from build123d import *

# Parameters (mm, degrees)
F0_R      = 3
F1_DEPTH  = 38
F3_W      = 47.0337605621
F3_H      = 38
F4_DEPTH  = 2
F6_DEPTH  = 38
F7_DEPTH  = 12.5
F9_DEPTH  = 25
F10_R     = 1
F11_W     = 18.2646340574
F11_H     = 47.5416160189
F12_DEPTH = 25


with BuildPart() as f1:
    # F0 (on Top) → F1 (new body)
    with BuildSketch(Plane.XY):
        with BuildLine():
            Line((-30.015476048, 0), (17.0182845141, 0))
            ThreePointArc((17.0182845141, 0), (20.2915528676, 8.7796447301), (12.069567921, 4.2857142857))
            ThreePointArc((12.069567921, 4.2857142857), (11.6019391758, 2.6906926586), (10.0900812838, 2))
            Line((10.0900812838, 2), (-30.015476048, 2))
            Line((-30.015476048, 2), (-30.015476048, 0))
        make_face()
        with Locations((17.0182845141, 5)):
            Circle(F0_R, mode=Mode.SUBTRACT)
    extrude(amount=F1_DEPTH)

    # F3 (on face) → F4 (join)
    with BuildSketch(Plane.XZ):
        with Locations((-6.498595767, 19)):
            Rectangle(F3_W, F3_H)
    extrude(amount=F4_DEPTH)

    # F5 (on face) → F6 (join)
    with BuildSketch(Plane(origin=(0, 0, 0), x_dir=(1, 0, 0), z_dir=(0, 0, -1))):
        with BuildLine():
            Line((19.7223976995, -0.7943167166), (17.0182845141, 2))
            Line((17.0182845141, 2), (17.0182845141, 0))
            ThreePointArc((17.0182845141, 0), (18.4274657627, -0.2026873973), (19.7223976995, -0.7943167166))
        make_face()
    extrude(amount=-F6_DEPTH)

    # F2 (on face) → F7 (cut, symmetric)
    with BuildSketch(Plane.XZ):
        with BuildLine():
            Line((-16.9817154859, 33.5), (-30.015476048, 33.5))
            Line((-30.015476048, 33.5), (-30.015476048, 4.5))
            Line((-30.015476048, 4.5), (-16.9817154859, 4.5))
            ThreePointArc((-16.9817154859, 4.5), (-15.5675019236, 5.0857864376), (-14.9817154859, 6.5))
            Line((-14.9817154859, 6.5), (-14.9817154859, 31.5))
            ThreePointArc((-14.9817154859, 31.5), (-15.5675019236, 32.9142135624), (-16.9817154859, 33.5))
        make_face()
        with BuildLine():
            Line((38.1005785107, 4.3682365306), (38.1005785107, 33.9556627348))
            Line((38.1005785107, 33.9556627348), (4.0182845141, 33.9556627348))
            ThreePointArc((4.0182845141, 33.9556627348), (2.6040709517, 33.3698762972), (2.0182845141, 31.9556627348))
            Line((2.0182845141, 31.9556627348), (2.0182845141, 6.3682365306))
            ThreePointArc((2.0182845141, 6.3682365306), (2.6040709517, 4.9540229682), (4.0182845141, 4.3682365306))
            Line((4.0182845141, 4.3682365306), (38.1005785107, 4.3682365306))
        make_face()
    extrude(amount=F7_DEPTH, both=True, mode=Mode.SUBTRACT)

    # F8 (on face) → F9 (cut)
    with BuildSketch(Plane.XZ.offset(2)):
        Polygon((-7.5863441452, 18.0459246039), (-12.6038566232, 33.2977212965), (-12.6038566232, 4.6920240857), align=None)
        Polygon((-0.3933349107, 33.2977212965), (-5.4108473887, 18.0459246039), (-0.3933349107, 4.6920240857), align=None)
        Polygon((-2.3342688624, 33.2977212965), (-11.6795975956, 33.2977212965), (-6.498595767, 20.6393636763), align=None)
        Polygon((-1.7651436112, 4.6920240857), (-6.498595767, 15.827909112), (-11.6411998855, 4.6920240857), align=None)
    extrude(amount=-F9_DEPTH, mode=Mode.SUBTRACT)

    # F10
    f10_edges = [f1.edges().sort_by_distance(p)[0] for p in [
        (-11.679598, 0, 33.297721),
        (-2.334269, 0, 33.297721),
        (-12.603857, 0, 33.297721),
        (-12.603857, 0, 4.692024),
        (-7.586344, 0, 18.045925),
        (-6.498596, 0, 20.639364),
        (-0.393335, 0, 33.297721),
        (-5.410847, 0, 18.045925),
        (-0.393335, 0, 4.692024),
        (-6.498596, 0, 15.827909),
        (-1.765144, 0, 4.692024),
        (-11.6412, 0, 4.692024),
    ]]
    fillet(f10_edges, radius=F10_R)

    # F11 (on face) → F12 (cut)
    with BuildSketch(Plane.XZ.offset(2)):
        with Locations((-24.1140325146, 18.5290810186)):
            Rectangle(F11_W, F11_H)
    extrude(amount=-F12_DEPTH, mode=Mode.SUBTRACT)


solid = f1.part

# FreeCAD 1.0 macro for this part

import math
import FreeCAD as App
import Part
import Sketcher
Q = App.Units.Quantity


def edges_at(feature, points):
    """Names of the edges that pass closest to the given points."""
    edges = feature.Shape.Edges
    near = lambda p: min(range(len(edges)), key=lambda i: edges[i].distToShape(Part.Vertex(*p))[0])
    return sorted({f"Edge{near(p) + 1}" for p in points})

doc = App.newDocument("Part")
body = doc.addObject("PartDesign::Body", "Body")

# Sketch on XY plane
sketch1 = doc.addObject("Sketcher::SketchObject", "Sketch")
body.addObject(sketch1)
sketch1.AttachmentSupport = (doc.XY_Plane, [""])
sketch1.MapMode = "FlatFace"
sketch1.addGeometry([
    Part.LineSegment(App.Vector(-30, 0, 0), App.Vector(17, 0, 0)),  # 0
    Part.ArcOfCircle(Part.Circle(App.Vector(17, 5, 0), App.Vector(0, 0, 1), 5), math.radians(-90), math.radians(188)),  # 1
    Part.ArcOfCircle(Part.Circle(App.Vector(10.1, 4, 0), App.Vector(0, 0, 1), 2), math.radians(-90), math.radians(8)),  # 2
    Part.LineSegment(App.Vector(10.1, 2, 0), App.Vector(-30, 2, 0)),  # 3
    Part.LineSegment(App.Vector(-30, 2, 0), App.Vector(-30, 0, 0)),  # 4
    Part.Circle(App.Vector(17, 5, 0), App.Vector(0, 0, 1), 3),  # 5
], False)
sketch1.addConstraint([
    Sketcher.Constraint("Tangent", 0, 2, 1, 1),
    Sketcher.Constraint("Tangent", 1, 2, 2, 2),
    Sketcher.Constraint("Tangent", 2, 1, 3, 1),
    Sketcher.Constraint("Coincident", 3, 2, 4, 1),
    Sketcher.Constraint("Coincident", 4, 2, 0, 1),
    Sketcher.Constraint("Horizontal", 0),
    Sketcher.Constraint("Horizontal", 3),
    Sketcher.Constraint("Vertical", 4),
    Sketcher.Constraint("Coincident", 5, 3, 1, 3),
    Sketcher.Constraint("PointOnObject", 0, 2, -1),
    Sketcher.Constraint("Diameter", 5, Q("6 mm")),
    Sketcher.Constraint("Radius", 1, Q("5 mm")),
    Sketcher.Constraint("Radius", 2, Q("2 mm")),
    Sketcher.Constraint("DistanceY", 4, 2, 4, 1, Q("2 mm")),
    Sketcher.Constraint("DistanceX", 0, 1, 0, 2, Q("47.033761 mm")),
    Sketcher.Constraint("DistanceX", -1, 1, 2, 3, Q("10.090081 mm")),
])
pad1 = doc.addObject("PartDesign::Pad", "Pad")
body.addObject(pad1)
pad1.Profile = sketch1
pad1.Length = 38

# Sketch on XZ plane
sketch2 = doc.addObject("Sketcher::SketchObject", "Sketch001")
body.addObject(sketch2)
sketch2.AttachmentSupport = (doc.XZ_Plane, [""])
sketch2.MapMode = "FlatFace"
sketch2.addGeometry([
    Part.LineSegment(App.Vector(-30, 38, 0), App.Vector(-30, 0, 0)),
    Part.LineSegment(App.Vector(-30, 0, 0), App.Vector(17, 0, 0)),
    Part.LineSegment(App.Vector(17, 0, 0), App.Vector(17, 38, 0)),
    Part.LineSegment(App.Vector(17, 38, 0), App.Vector(-30, 38, 0)),
], False)
sketch2.addConstraint([
    Sketcher.Constraint("Coincident", 0, 2, 1, 1),
    Sketcher.Constraint("Coincident", 1, 2, 2, 1),
    Sketcher.Constraint("Coincident", 2, 2, 3, 1),
    Sketcher.Constraint("Coincident", 3, 2, 0, 1),
    Sketcher.Constraint("Vertical", 0),
    Sketcher.Constraint("Horizontal", 1),
    Sketcher.Constraint("Vertical", 2),
    Sketcher.Constraint("Horizontal", 3),
    Sketcher.Constraint("PointOnObject", 0, 2, -1),
    Sketcher.Constraint("DistanceY", 0, 2, 0, 1, Q("38 mm")),
    Sketcher.Constraint("DistanceX", 1, 1, 1, 2, Q("47.033761 mm")),
    Sketcher.Constraint("DistanceX", 0, 2, -1, 1, Q("30.015476 mm")),
])
pad2 = doc.addObject("PartDesign::Pad", "Pad001")
body.addObject(pad2)
pad2.Profile = sketch2
pad2.Length = 2

# Sketch on XY plane
sketch3 = doc.addObject("Sketcher::SketchObject", "Sketch002")
body.addObject(sketch3)
sketch3.AttachmentSupport = (doc.XY_Plane, [""])
sketch3.MapMode = "FlatFace"
sketch3.addGeometry([
    Part.LineSegment(App.Vector(19.7, 0.8, 0), App.Vector(17, -2, 0)),
    Part.LineSegment(App.Vector(17, -2, 0), App.Vector(17, 0, 0)),
    Part.ArcOfCircle(Part.Circle(App.Vector(17, 5, 0), App.Vector(0, 0, 1), 5), math.radians(-90), math.radians(-57)),
], False)
sketch3.addConstraint([
    Sketcher.Constraint("Coincident", 0, 2, 1, 1),
    Sketcher.Constraint("Coincident", 1, 2, 2, 1),
    Sketcher.Constraint("Coincident", 2, 2, 0, 1),
    Sketcher.Constraint("Vertical", 1),
    Sketcher.Constraint("PointOnObject", 1, 2, -1),
    Sketcher.Constraint("Vertical", 2, 3, 0, 2),
    Sketcher.Constraint("Radius", 2, Q("5 mm")),
    Sketcher.Constraint("DistanceY", 1, 1, 1, 2, Q("2 mm")),
    Sketcher.Constraint("Distance", 0, Q("3.8885 mm")),
    Sketcher.Constraint("DistanceX", -1, 1, 2, 3, Q("17.018285 mm")),
])
pad3 = doc.addObject("PartDesign::Pad", "Pad002")
body.addObject(pad3)
pad3.Profile = sketch3
pad3.Length = 38

# Sketch on XZ plane
sketch4 = doc.addObject("Sketcher::SketchObject", "Sketch003")
body.addObject(sketch4)
sketch4.AttachmentSupport = (doc.XZ_Plane, [""])
sketch4.MapMode = "FlatFace"
sketch4.addGeometry([
    Part.LineSegment(App.Vector(-17, 33.5, 0), App.Vector(-30, 33.5, 0)),  # 0
    Part.LineSegment(App.Vector(-30, 33.5, 0), App.Vector(-30, 4.5, 0)),  # 1
    Part.LineSegment(App.Vector(-30, 4.5, 0), App.Vector(-17, 4.5, 0)),  # 2
    Part.ArcOfCircle(Part.Circle(App.Vector(-17, 6.5, 0), App.Vector(0, 0, 1), 2), math.radians(-90), math.radians(0)),  # 3
    Part.LineSegment(App.Vector(-15, 6.5, 0), App.Vector(-15, 31.5, 0)),  # 4
    Part.ArcOfCircle(Part.Circle(App.Vector(-17, 31.5, 0), App.Vector(0, 0, 1), 2), math.radians(0), math.radians(90)),  # 5
    Part.LineSegment(App.Vector(38.1, 4.4, 0), App.Vector(38.1, 34, 0)),  # 6
    Part.LineSegment(App.Vector(38.1, 34, 0), App.Vector(4, 34, 0)),  # 7
    Part.ArcOfCircle(Part.Circle(App.Vector(4, 32, 0), App.Vector(0, 0, 1), 2), math.radians(90), math.radians(180)),  # 8
    Part.LineSegment(App.Vector(2, 32, 0), App.Vector(2, 6.4, 0)),  # 9
    Part.ArcOfCircle(Part.Circle(App.Vector(4, 6.4, 0), App.Vector(0, 0, 1), 2), math.radians(180), math.radians(270)),  # 10
    Part.LineSegment(App.Vector(4, 4.4, 0), App.Vector(38.1, 4.4, 0)),  # 11
], False)
sketch4.addConstraint([
    Sketcher.Constraint("Coincident", 0, 2, 1, 1),
    Sketcher.Constraint("Coincident", 1, 2, 2, 1),
    Sketcher.Constraint("Tangent", 2, 2, 3, 1),
    Sketcher.Constraint("Tangent", 3, 2, 4, 1),
    Sketcher.Constraint("Tangent", 4, 2, 5, 1),
    Sketcher.Constraint("Tangent", 5, 2, 0, 1),
    Sketcher.Constraint("Coincident", 6, 2, 7, 1),
    Sketcher.Constraint("Tangent", 7, 2, 8, 1),
    Sketcher.Constraint("Tangent", 8, 2, 9, 1),
    Sketcher.Constraint("Tangent", 9, 2, 10, 1),
    Sketcher.Constraint("Tangent", 10, 2, 11, 1),
    Sketcher.Constraint("Coincident", 11, 2, 6, 1),
    Sketcher.Constraint("Horizontal", 0),
    Sketcher.Constraint("Vertical", 1),
    Sketcher.Constraint("Horizontal", 2),
    Sketcher.Constraint("Vertical", 4),
    Sketcher.Constraint("Vertical", 6),
    Sketcher.Constraint("Horizontal", 7),
    Sketcher.Constraint("Vertical", 9),
    Sketcher.Constraint("Horizontal", 11),
    Sketcher.Constraint("Equal", 3, 5),
    Sketcher.Constraint("Equal", 5, 8),
    Sketcher.Constraint("Equal", 8, 10),
    Sketcher.Constraint("Radius", 3, Q("2 mm")),
    Sketcher.Constraint("DistanceY", 1, 2, 1, 1, Q("29 mm")),
    Sketcher.Constraint("DistanceX", 5, 3, 8, 3, Q("21 mm")),
    Sketcher.Constraint("DistanceY", -1, 1, 3, 3, Q("6.5 mm")),
    Sketcher.Constraint("DistanceX", 0, 2, 0, 1, Q("13.033761 mm")),
    Sketcher.Constraint("DistanceX", 7, 2, 7, 1, Q("34.082294 mm")),
    Sketcher.Constraint("DistanceY", 6, 1, 6, 2, Q("29.587426 mm")),
    Sketcher.Constraint("DistanceX", -1, 1, 6, 2, Q("38.100579 mm")),
    Sketcher.Constraint("DistanceY", -1, 1, 8, 3, Q("31.955663 mm")),
])
pocket1 = doc.addObject("PartDesign::Pocket", "Pocket")
body.addObject(pocket1)
pocket1.Profile = sketch4
pocket1.Length = 25
pocket1.Midplane = True

# Sketch on XZ plane
sketch5 = doc.addObject("Sketcher::SketchObject", "Sketch004")
body.addObject(sketch5)
sketch5.AttachmentSupport = (doc.XZ_Plane, [""])
sketch5.MapMode = "FlatFace"
sketch5.AttachmentOffset = App.Placement(App.Vector(0, 0, 2), App.Rotation())
sketch5.addGeometry([
    Part.LineSegment(App.Vector(-8, 18, 0), App.Vector(-13, 33, 0)),  # 0
    Part.LineSegment(App.Vector(-13, 33, 0), App.Vector(-13, 5, 0)),  # 1
    Part.LineSegment(App.Vector(-13, 5, 0), App.Vector(-8, 18, 0)),  # 2
    Part.LineSegment(App.Vector(0, 33, 0), App.Vector(-5, 18, 0)),  # 3
    Part.LineSegment(App.Vector(-5, 18, 0), App.Vector(0, 5, 0)),  # 4
    Part.LineSegment(App.Vector(0, 5, 0), App.Vector(0, 33, 0)),  # 5
    Part.LineSegment(App.Vector(-2, 33, 0), App.Vector(-12, 33, 0)),  # 6
    Part.LineSegment(App.Vector(-12, 33, 0), App.Vector(-6, 21, 0)),  # 7
    Part.LineSegment(App.Vector(-6, 21, 0), App.Vector(-2, 33, 0)),  # 8
    Part.LineSegment(App.Vector(-2, 5, 0), App.Vector(-6, 16, 0)),  # 9
    Part.LineSegment(App.Vector(-6, 16, 0), App.Vector(-12, 5, 0)),  # 10
    Part.LineSegment(App.Vector(-12, 5, 0), App.Vector(-2, 5, 0)),  # 11
], False)
sketch5.addConstraint([
    Sketcher.Constraint("Coincident", 0, 2, 1, 1),
    Sketcher.Constraint("Coincident", 1, 2, 2, 1),
    Sketcher.Constraint("Coincident", 2, 2, 0, 1),
    Sketcher.Constraint("Coincident", 3, 2, 4, 1),
    Sketcher.Constraint("Coincident", 4, 2, 5, 1),
    Sketcher.Constraint("Coincident", 5, 2, 3, 1),
    Sketcher.Constraint("Coincident", 6, 2, 7, 1),
    Sketcher.Constraint("Coincident", 7, 2, 8, 1),
    Sketcher.Constraint("Coincident", 8, 2, 6, 1),
    Sketcher.Constraint("Coincident", 9, 2, 10, 1),
    Sketcher.Constraint("Coincident", 10, 2, 11, 1),
    Sketcher.Constraint("Coincident", 11, 2, 9, 1),
    Sketcher.Constraint("Vertical", 1),
    Sketcher.Constraint("Vertical", 5),
    Sketcher.Constraint("Horizontal", 6),
    Sketcher.Constraint("Horizontal", 11),
    Sketcher.Constraint("Parallel", 3, 8),
    Sketcher.Constraint("Horizontal", 2, 2, 3, 2),
    Sketcher.Constraint("Horizontal", 1, 2, 4, 2),
    Sketcher.Constraint("Horizontal", 0, 2, 5, 2),
    Sketcher.Constraint("Horizontal", 5, 2, 6, 2),
    Sketcher.Constraint("Horizontal", 4, 2, 10, 2),
    Sketcher.Constraint("Vertical", 7, 2, 9, 2),
    Sketcher.Constraint("Equal", 0, 3),
    Sketcher.Constraint("DistanceX", 6, 2, 7, 2, Q("5.181002 mm")),
    Sketcher.Constraint("DistanceX", 6, 2, 6, 1, Q("9.345329 mm")),
    Sketcher.Constraint("DistanceX", 10, 2, -1, 1, Q("11.6412 mm")),
    Sketcher.Constraint("DistanceY", 1, 2, 2, 2, Q("13.353901 mm")),
    Sketcher.Constraint("Distance", 8, Q("13.325751 mm")),
    Sketcher.Constraint("Distance", 10, Q("12.265982 mm")),
    Sketcher.Constraint("DistanceX", 11, 1, 11, 2, Q("9.876056 mm")),
    Sketcher.Constraint("DistanceY", 1, 2, 1, 1, Q("28.605697 mm")),
    Sketcher.Constraint("DistanceY", -1, 1, 0, 2, Q("33.297721 mm")),
    Sketcher.Constraint("DistanceX", 8, 2, -1, 1, Q("2.334269 mm")),
    Sketcher.Constraint("DistanceX", 1, 2, 3, 2, Q("7.193009 mm")),
    Sketcher.Constraint("DistanceX", 0, 2, 6, 2, Q("0.924259 mm")),
])
pocket2 = doc.addObject("PartDesign::Pocket", "Pocket001")
body.addObject(pocket2)
pocket2.Profile = sketch5
pocket2.Length = 25
doc.recompute()

fillet = doc.addObject("PartDesign::Fillet", "Fillet")
body.addObject(fillet)
fillet.Base = (pocket2, edges_at(pocket2, [
    (-11.68, 0, 33.298),
    (-2.334, 0, 33.298),
    (-12.604, 0, 33.298),
    (-12.604, 0, 4.692),
    (-7.586, 0, 18.046),
    (-6.499, 0, 20.639),
    (-0.393, 0, 33.298),
    (-5.411, 0, 18.046),
    (-0.393, 0, 4.692),
    (-6.499, 0, 15.828),
    (-1.765, 0, 4.692),
    (-11.641, 0, 4.692),
]))
fillet.Radius = 1

# Sketch on XZ plane
sketch6 = doc.addObject("Sketcher::SketchObject", "Sketch005")
body.addObject(sketch6)
sketch6.AttachmentSupport = (doc.XZ_Plane, [""])
sketch6.MapMode = "FlatFace"
sketch6.AttachmentOffset = App.Placement(App.Vector(0, 0, 2), App.Rotation())
sketch6.addGeometry([
    Part.LineSegment(App.Vector(-33, 42, 0), App.Vector(-33, -5, 0)),
    Part.LineSegment(App.Vector(-33, -5, 0), App.Vector(-15, -5, 0)),
    Part.LineSegment(App.Vector(-15, -5, 0), App.Vector(-15, 42, 0)),
    Part.LineSegment(App.Vector(-15, 42, 0), App.Vector(-33, 42, 0)),
], False)
sketch6.addConstraint([
    Sketcher.Constraint("Coincident", 0, 2, 1, 1),
    Sketcher.Constraint("Coincident", 1, 2, 2, 1),
    Sketcher.Constraint("Coincident", 2, 2, 3, 1),
    Sketcher.Constraint("Coincident", 3, 2, 0, 1),
    Sketcher.Constraint("Vertical", 0),
    Sketcher.Constraint("Horizontal", 1),
    Sketcher.Constraint("Vertical", 2),
    Sketcher.Constraint("Horizontal", 3),
    Sketcher.Constraint("DistanceX", 1, 1, 1, 2, Q("18.264634 mm")),
    Sketcher.Constraint("DistanceY", 0, 2, 0, 1, Q("47.541616 mm")),
    Sketcher.Constraint("DistanceX", 0, 2, -1, 1, Q("33.24635 mm")),
    Sketcher.Constraint("DistanceY", -1, 1, 2, 2, Q("42.299889 mm")),
])
pocket3 = doc.addObject("PartDesign::Pocket", "Pocket002")
body.addObject(pocket3)
pocket3.Profile = sketch6
pocket3.Length = 25

doc.recompute()
